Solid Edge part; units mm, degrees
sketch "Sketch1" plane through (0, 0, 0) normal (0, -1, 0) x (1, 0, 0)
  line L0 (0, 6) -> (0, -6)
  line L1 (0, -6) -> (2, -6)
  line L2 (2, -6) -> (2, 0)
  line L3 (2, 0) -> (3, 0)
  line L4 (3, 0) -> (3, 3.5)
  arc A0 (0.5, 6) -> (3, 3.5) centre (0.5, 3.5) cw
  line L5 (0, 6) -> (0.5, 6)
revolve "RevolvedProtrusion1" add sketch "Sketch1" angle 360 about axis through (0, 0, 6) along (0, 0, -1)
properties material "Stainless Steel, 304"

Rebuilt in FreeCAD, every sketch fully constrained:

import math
import FreeCAD as App
import Part
import Sketcher

V = App.Vector

doc = App.newDocument("Part")
body = doc.addObject("PartDesign::Body", "Body")

# Sketch on XZ plane
sketch1 = doc.addObject("Sketcher::SketchObject", "Sketch")
body.addObject(sketch1)
sketch1.AttachmentSupport = (doc.XZ_Plane, [""])
sketch1.MapMode = "FlatFace"
sketch1.addGeometry(Part.LineSegment(V(0.5, 6, 0), V(0, 6, 0)), False)
sketch1.addGeometry(Part.LineSegment(V(0, 6, 0), V(0, -6, 0)), False)
sketch1.addGeometry(Part.LineSegment(V(0, -6, 0), V(2, -6, 0)), False)
sketch1.addGeometry(Part.LineSegment(V(2, -6, 0), V(2, 0, 0)), False)
sketch1.addGeometry(Part.LineSegment(V(2, 0, 0), V(3, 0, 0)), False)
sketch1.addGeometry(Part.LineSegment(V(3, 0, 0), V(3, 3.5, 0)), False)
sketch1.addGeometry(Part.ArcOfCircle(Part.Circle(V(0.5, 3.5, 0), V(0, 0, 1), 2.5), math.radians(0), math.radians(90)), False)
sketch1.addConstraint(Sketcher.Constraint("Coincident", 0, 2, 1, 1))
sketch1.addConstraint(Sketcher.Constraint("Coincident", 1, 2, 2, 1))
sketch1.addConstraint(Sketcher.Constraint("Coincident", 2, 2, 3, 1))
sketch1.addConstraint(Sketcher.Constraint("Coincident", 3, 2, 4, 1))
sketch1.addConstraint(Sketcher.Constraint("Coincident", 4, 2, 5, 1))
sketch1.addConstraint(Sketcher.Constraint("Tangent", 5, 2, 6, 1))
sketch1.addConstraint(Sketcher.Constraint("Tangent", 6, 2, 0, 1))
sketch1.addConstraint(Sketcher.Constraint("Horizontal", 0))
sketch1.addConstraint(Sketcher.Constraint("Vertical", 1))
sketch1.addConstraint(Sketcher.Constraint("Horizontal", 2))
sketch1.addConstraint(Sketcher.Constraint("Vertical", 3))
sketch1.addConstraint(Sketcher.Constraint("Horizontal", 4))
sketch1.addConstraint(Sketcher.Constraint("Vertical", 5))
sketch1.addConstraint(Sketcher.Constraint("Symmetric", 0, 2, 1, 2, -1, 1))
sketch1.addConstraint(Sketcher.Constraint("PointOnObject", 3, 2, -1))
sketch1.addConstraint(Sketcher.Constraint("Radius", 6, 2.5))
sketch1.addConstraint(Sketcher.Constraint("DistanceX", 2, 1, 2, 2, 2.0))
sketch1.addConstraint(Sketcher.Constraint("DistanceX", 4, 1, 4, 2, 1.0))
sketch1.addConstraint(Sketcher.Constraint("DistanceY", 1, 2, 1, 1, 12.0))
revolution = doc.addObject("PartDesign::Revolution", "Revolution")
body.addObject(revolution)
revolution.Profile = sketch1
revolution.ReferenceAxis = (sketch1, ["V_Axis"])
revolution.Angle = 360

doc.recompute()
